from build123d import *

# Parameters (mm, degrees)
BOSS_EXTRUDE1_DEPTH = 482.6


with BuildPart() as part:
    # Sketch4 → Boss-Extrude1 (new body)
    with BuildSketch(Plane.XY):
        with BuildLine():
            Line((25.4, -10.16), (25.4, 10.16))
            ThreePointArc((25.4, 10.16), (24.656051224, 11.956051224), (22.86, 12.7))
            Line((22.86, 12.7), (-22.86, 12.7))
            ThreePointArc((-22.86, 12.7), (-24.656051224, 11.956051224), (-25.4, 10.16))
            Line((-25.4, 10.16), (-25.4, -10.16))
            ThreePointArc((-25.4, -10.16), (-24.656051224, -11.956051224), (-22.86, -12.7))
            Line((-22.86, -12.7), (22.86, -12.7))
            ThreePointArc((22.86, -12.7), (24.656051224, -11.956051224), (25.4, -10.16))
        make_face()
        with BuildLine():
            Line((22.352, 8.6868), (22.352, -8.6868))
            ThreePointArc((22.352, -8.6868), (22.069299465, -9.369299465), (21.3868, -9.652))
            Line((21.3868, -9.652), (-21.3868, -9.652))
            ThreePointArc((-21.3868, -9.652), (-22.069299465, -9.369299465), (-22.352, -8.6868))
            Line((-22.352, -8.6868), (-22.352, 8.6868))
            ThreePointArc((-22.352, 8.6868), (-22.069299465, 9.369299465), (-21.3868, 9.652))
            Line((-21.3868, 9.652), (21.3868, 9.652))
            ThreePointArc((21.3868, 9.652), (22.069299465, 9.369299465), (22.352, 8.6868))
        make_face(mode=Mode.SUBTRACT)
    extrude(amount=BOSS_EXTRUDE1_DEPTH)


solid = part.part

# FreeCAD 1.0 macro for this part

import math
import FreeCAD as App
import Part
import Sketcher
Q = App.Units.Quantity

doc = App.newDocument("Part")
body = doc.addObject("PartDesign::Body", "Body")

# Sketch on XY plane
sketch1 = doc.addObject("Sketcher::SketchObject", "Sketch")
body.addObject(sketch1)
sketch1.AttachmentSupport = (doc.XY_Plane, [""])
sketch1.MapMode = "FlatFace"
sketch1.addGeometry([
    Part.LineSegment(App.Vector(25.4, -10.2, 0), App.Vector(25.4, 10.2, 0)),  # 0
    Part.ArcOfCircle(Part.Circle(App.Vector(22.9, 10.2, 0), App.Vector(0, 0, 1), 2.5), math.radians(0), math.radians(90)),  # 1
    Part.LineSegment(App.Vector(22.9, 12.7, 0), App.Vector(-22.9, 12.7, 0)),  # 2
    Part.ArcOfCircle(Part.Circle(App.Vector(-22.9, 10.2, 0), App.Vector(0, 0, 1), 2.5), math.radians(90), math.radians(180)),  # 3
    Part.LineSegment(App.Vector(-25.4, 10.2, 0), App.Vector(-25.4, -10.2, 0)),  # 4
    Part.ArcOfCircle(Part.Circle(App.Vector(-22.9, -10.2, 0), App.Vector(0, 0, 1), 2.5), math.radians(-180), math.radians(-90)),  # 5
    Part.LineSegment(App.Vector(-22.9, -12.7, 0), App.Vector(22.9, -12.7, 0)),  # 6
    Part.ArcOfCircle(Part.Circle(App.Vector(22.9, -10.2, 0), App.Vector(0, 0, 1), 2.5), math.radians(-90), math.radians(0)),  # 7
    Part.ArcOfCircle(Part.Circle(App.Vector(21.4, 8.7, 0), App.Vector(0, 0, 1), 1), math.radians(0), math.radians(90)),  # 8
    Part.LineSegment(App.Vector(22.4, 8.7, 0), App.Vector(22.4, -8.7, 0)),  # 9
    Part.ArcOfCircle(Part.Circle(App.Vector(21.4, -8.7, 0), App.Vector(0, 0, 1), 1), math.radians(-90), math.radians(0)),  # 10
    Part.LineSegment(App.Vector(21.4, -9.7, 0), App.Vector(-21.4, -9.7, 0)),  # 11
    Part.ArcOfCircle(Part.Circle(App.Vector(-21.4, -8.7, 0), App.Vector(0, 0, 1), 1), math.radians(-180), math.radians(-90)),  # 12
    Part.LineSegment(App.Vector(-22.4, -8.7, 0), App.Vector(-22.4, 8.7, 0)),  # 13
    Part.ArcOfCircle(Part.Circle(App.Vector(-21.4, 8.7, 0), App.Vector(0, 0, 1), 1), math.radians(90), math.radians(180)),  # 14
    Part.LineSegment(App.Vector(-21.4, 9.7, 0), App.Vector(21.4, 9.7, 0)),  # 15
], False)
sketch1.addConstraint([
    Sketcher.Constraint("Tangent", 0, 2, 1, 1),
    Sketcher.Constraint("Tangent", 1, 2, 2, 1),
    Sketcher.Constraint("Tangent", 2, 2, 3, 1),
    Sketcher.Constraint("Tangent", 3, 2, 4, 1),
    Sketcher.Constraint("Tangent", 4, 2, 5, 1),
    Sketcher.Constraint("Tangent", 5, 2, 6, 1),
    Sketcher.Constraint("Tangent", 6, 2, 7, 1),
    Sketcher.Constraint("Tangent", 7, 2, 0, 1),
    Sketcher.Constraint("Tangent", 8, 1, 9, 1),
    Sketcher.Constraint("Tangent", 9, 2, 10, 2),
    Sketcher.Constraint("Tangent", 10, 1, 11, 1),
    Sketcher.Constraint("Tangent", 11, 2, 12, 2),
    Sketcher.Constraint("Tangent", 12, 1, 13, 1),
    Sketcher.Constraint("Tangent", 13, 2, 14, 2),
    Sketcher.Constraint("Tangent", 14, 1, 15, 1),
    Sketcher.Constraint("Tangent", 15, 2, 8, 2),
    Sketcher.Constraint("Vertical", 0),
    Sketcher.Constraint("Horizontal", 2),
    Sketcher.Constraint("Vertical", 4),
    Sketcher.Constraint("Horizontal", 6),
    Sketcher.Constraint("Vertical", 9),
    Sketcher.Constraint("Horizontal", 11),
    Sketcher.Constraint("Vertical", 13),
    Sketcher.Constraint("Horizontal", 15),
    Sketcher.Constraint("Equal", 1, 3),
    Sketcher.Constraint("Equal", 3, 5),
    Sketcher.Constraint("Equal", 5, 7),
    Sketcher.Constraint("Equal", 8, 10),
    Sketcher.Constraint("Equal", 10, 12),
    Sketcher.Constraint("Equal", 12, 14),
    Sketcher.Constraint("Symmetric", 1, 3, 5, 3, -1, 1),
    Sketcher.Constraint("Symmetric", 8, 3, 12, 3, -1, 1),
    Sketcher.Constraint("Radius", 1, Q("0.1 in")),
    Sketcher.Constraint("DistanceX", 2, 2, 2, 1, Q("1.8 in")),
    Sketcher.Constraint("DistanceY", 0, 1, 0, 2, Q("0.8 in")),
    Sketcher.Constraint("Radius", 8, Q("0.038 in")),
    Sketcher.Constraint("DistanceX", 11, 2, 11, 1, Q("1.684 in")),
    Sketcher.Constraint("DistanceY", 9, 2, 9, 1, Q("0.684 in")),
])
pad1 = doc.addObject("PartDesign::Pad", "Pad")
body.addObject(pad1)
pad1.Profile = sketch1
pad1.Length = Q("19 in")

doc.recompute()
